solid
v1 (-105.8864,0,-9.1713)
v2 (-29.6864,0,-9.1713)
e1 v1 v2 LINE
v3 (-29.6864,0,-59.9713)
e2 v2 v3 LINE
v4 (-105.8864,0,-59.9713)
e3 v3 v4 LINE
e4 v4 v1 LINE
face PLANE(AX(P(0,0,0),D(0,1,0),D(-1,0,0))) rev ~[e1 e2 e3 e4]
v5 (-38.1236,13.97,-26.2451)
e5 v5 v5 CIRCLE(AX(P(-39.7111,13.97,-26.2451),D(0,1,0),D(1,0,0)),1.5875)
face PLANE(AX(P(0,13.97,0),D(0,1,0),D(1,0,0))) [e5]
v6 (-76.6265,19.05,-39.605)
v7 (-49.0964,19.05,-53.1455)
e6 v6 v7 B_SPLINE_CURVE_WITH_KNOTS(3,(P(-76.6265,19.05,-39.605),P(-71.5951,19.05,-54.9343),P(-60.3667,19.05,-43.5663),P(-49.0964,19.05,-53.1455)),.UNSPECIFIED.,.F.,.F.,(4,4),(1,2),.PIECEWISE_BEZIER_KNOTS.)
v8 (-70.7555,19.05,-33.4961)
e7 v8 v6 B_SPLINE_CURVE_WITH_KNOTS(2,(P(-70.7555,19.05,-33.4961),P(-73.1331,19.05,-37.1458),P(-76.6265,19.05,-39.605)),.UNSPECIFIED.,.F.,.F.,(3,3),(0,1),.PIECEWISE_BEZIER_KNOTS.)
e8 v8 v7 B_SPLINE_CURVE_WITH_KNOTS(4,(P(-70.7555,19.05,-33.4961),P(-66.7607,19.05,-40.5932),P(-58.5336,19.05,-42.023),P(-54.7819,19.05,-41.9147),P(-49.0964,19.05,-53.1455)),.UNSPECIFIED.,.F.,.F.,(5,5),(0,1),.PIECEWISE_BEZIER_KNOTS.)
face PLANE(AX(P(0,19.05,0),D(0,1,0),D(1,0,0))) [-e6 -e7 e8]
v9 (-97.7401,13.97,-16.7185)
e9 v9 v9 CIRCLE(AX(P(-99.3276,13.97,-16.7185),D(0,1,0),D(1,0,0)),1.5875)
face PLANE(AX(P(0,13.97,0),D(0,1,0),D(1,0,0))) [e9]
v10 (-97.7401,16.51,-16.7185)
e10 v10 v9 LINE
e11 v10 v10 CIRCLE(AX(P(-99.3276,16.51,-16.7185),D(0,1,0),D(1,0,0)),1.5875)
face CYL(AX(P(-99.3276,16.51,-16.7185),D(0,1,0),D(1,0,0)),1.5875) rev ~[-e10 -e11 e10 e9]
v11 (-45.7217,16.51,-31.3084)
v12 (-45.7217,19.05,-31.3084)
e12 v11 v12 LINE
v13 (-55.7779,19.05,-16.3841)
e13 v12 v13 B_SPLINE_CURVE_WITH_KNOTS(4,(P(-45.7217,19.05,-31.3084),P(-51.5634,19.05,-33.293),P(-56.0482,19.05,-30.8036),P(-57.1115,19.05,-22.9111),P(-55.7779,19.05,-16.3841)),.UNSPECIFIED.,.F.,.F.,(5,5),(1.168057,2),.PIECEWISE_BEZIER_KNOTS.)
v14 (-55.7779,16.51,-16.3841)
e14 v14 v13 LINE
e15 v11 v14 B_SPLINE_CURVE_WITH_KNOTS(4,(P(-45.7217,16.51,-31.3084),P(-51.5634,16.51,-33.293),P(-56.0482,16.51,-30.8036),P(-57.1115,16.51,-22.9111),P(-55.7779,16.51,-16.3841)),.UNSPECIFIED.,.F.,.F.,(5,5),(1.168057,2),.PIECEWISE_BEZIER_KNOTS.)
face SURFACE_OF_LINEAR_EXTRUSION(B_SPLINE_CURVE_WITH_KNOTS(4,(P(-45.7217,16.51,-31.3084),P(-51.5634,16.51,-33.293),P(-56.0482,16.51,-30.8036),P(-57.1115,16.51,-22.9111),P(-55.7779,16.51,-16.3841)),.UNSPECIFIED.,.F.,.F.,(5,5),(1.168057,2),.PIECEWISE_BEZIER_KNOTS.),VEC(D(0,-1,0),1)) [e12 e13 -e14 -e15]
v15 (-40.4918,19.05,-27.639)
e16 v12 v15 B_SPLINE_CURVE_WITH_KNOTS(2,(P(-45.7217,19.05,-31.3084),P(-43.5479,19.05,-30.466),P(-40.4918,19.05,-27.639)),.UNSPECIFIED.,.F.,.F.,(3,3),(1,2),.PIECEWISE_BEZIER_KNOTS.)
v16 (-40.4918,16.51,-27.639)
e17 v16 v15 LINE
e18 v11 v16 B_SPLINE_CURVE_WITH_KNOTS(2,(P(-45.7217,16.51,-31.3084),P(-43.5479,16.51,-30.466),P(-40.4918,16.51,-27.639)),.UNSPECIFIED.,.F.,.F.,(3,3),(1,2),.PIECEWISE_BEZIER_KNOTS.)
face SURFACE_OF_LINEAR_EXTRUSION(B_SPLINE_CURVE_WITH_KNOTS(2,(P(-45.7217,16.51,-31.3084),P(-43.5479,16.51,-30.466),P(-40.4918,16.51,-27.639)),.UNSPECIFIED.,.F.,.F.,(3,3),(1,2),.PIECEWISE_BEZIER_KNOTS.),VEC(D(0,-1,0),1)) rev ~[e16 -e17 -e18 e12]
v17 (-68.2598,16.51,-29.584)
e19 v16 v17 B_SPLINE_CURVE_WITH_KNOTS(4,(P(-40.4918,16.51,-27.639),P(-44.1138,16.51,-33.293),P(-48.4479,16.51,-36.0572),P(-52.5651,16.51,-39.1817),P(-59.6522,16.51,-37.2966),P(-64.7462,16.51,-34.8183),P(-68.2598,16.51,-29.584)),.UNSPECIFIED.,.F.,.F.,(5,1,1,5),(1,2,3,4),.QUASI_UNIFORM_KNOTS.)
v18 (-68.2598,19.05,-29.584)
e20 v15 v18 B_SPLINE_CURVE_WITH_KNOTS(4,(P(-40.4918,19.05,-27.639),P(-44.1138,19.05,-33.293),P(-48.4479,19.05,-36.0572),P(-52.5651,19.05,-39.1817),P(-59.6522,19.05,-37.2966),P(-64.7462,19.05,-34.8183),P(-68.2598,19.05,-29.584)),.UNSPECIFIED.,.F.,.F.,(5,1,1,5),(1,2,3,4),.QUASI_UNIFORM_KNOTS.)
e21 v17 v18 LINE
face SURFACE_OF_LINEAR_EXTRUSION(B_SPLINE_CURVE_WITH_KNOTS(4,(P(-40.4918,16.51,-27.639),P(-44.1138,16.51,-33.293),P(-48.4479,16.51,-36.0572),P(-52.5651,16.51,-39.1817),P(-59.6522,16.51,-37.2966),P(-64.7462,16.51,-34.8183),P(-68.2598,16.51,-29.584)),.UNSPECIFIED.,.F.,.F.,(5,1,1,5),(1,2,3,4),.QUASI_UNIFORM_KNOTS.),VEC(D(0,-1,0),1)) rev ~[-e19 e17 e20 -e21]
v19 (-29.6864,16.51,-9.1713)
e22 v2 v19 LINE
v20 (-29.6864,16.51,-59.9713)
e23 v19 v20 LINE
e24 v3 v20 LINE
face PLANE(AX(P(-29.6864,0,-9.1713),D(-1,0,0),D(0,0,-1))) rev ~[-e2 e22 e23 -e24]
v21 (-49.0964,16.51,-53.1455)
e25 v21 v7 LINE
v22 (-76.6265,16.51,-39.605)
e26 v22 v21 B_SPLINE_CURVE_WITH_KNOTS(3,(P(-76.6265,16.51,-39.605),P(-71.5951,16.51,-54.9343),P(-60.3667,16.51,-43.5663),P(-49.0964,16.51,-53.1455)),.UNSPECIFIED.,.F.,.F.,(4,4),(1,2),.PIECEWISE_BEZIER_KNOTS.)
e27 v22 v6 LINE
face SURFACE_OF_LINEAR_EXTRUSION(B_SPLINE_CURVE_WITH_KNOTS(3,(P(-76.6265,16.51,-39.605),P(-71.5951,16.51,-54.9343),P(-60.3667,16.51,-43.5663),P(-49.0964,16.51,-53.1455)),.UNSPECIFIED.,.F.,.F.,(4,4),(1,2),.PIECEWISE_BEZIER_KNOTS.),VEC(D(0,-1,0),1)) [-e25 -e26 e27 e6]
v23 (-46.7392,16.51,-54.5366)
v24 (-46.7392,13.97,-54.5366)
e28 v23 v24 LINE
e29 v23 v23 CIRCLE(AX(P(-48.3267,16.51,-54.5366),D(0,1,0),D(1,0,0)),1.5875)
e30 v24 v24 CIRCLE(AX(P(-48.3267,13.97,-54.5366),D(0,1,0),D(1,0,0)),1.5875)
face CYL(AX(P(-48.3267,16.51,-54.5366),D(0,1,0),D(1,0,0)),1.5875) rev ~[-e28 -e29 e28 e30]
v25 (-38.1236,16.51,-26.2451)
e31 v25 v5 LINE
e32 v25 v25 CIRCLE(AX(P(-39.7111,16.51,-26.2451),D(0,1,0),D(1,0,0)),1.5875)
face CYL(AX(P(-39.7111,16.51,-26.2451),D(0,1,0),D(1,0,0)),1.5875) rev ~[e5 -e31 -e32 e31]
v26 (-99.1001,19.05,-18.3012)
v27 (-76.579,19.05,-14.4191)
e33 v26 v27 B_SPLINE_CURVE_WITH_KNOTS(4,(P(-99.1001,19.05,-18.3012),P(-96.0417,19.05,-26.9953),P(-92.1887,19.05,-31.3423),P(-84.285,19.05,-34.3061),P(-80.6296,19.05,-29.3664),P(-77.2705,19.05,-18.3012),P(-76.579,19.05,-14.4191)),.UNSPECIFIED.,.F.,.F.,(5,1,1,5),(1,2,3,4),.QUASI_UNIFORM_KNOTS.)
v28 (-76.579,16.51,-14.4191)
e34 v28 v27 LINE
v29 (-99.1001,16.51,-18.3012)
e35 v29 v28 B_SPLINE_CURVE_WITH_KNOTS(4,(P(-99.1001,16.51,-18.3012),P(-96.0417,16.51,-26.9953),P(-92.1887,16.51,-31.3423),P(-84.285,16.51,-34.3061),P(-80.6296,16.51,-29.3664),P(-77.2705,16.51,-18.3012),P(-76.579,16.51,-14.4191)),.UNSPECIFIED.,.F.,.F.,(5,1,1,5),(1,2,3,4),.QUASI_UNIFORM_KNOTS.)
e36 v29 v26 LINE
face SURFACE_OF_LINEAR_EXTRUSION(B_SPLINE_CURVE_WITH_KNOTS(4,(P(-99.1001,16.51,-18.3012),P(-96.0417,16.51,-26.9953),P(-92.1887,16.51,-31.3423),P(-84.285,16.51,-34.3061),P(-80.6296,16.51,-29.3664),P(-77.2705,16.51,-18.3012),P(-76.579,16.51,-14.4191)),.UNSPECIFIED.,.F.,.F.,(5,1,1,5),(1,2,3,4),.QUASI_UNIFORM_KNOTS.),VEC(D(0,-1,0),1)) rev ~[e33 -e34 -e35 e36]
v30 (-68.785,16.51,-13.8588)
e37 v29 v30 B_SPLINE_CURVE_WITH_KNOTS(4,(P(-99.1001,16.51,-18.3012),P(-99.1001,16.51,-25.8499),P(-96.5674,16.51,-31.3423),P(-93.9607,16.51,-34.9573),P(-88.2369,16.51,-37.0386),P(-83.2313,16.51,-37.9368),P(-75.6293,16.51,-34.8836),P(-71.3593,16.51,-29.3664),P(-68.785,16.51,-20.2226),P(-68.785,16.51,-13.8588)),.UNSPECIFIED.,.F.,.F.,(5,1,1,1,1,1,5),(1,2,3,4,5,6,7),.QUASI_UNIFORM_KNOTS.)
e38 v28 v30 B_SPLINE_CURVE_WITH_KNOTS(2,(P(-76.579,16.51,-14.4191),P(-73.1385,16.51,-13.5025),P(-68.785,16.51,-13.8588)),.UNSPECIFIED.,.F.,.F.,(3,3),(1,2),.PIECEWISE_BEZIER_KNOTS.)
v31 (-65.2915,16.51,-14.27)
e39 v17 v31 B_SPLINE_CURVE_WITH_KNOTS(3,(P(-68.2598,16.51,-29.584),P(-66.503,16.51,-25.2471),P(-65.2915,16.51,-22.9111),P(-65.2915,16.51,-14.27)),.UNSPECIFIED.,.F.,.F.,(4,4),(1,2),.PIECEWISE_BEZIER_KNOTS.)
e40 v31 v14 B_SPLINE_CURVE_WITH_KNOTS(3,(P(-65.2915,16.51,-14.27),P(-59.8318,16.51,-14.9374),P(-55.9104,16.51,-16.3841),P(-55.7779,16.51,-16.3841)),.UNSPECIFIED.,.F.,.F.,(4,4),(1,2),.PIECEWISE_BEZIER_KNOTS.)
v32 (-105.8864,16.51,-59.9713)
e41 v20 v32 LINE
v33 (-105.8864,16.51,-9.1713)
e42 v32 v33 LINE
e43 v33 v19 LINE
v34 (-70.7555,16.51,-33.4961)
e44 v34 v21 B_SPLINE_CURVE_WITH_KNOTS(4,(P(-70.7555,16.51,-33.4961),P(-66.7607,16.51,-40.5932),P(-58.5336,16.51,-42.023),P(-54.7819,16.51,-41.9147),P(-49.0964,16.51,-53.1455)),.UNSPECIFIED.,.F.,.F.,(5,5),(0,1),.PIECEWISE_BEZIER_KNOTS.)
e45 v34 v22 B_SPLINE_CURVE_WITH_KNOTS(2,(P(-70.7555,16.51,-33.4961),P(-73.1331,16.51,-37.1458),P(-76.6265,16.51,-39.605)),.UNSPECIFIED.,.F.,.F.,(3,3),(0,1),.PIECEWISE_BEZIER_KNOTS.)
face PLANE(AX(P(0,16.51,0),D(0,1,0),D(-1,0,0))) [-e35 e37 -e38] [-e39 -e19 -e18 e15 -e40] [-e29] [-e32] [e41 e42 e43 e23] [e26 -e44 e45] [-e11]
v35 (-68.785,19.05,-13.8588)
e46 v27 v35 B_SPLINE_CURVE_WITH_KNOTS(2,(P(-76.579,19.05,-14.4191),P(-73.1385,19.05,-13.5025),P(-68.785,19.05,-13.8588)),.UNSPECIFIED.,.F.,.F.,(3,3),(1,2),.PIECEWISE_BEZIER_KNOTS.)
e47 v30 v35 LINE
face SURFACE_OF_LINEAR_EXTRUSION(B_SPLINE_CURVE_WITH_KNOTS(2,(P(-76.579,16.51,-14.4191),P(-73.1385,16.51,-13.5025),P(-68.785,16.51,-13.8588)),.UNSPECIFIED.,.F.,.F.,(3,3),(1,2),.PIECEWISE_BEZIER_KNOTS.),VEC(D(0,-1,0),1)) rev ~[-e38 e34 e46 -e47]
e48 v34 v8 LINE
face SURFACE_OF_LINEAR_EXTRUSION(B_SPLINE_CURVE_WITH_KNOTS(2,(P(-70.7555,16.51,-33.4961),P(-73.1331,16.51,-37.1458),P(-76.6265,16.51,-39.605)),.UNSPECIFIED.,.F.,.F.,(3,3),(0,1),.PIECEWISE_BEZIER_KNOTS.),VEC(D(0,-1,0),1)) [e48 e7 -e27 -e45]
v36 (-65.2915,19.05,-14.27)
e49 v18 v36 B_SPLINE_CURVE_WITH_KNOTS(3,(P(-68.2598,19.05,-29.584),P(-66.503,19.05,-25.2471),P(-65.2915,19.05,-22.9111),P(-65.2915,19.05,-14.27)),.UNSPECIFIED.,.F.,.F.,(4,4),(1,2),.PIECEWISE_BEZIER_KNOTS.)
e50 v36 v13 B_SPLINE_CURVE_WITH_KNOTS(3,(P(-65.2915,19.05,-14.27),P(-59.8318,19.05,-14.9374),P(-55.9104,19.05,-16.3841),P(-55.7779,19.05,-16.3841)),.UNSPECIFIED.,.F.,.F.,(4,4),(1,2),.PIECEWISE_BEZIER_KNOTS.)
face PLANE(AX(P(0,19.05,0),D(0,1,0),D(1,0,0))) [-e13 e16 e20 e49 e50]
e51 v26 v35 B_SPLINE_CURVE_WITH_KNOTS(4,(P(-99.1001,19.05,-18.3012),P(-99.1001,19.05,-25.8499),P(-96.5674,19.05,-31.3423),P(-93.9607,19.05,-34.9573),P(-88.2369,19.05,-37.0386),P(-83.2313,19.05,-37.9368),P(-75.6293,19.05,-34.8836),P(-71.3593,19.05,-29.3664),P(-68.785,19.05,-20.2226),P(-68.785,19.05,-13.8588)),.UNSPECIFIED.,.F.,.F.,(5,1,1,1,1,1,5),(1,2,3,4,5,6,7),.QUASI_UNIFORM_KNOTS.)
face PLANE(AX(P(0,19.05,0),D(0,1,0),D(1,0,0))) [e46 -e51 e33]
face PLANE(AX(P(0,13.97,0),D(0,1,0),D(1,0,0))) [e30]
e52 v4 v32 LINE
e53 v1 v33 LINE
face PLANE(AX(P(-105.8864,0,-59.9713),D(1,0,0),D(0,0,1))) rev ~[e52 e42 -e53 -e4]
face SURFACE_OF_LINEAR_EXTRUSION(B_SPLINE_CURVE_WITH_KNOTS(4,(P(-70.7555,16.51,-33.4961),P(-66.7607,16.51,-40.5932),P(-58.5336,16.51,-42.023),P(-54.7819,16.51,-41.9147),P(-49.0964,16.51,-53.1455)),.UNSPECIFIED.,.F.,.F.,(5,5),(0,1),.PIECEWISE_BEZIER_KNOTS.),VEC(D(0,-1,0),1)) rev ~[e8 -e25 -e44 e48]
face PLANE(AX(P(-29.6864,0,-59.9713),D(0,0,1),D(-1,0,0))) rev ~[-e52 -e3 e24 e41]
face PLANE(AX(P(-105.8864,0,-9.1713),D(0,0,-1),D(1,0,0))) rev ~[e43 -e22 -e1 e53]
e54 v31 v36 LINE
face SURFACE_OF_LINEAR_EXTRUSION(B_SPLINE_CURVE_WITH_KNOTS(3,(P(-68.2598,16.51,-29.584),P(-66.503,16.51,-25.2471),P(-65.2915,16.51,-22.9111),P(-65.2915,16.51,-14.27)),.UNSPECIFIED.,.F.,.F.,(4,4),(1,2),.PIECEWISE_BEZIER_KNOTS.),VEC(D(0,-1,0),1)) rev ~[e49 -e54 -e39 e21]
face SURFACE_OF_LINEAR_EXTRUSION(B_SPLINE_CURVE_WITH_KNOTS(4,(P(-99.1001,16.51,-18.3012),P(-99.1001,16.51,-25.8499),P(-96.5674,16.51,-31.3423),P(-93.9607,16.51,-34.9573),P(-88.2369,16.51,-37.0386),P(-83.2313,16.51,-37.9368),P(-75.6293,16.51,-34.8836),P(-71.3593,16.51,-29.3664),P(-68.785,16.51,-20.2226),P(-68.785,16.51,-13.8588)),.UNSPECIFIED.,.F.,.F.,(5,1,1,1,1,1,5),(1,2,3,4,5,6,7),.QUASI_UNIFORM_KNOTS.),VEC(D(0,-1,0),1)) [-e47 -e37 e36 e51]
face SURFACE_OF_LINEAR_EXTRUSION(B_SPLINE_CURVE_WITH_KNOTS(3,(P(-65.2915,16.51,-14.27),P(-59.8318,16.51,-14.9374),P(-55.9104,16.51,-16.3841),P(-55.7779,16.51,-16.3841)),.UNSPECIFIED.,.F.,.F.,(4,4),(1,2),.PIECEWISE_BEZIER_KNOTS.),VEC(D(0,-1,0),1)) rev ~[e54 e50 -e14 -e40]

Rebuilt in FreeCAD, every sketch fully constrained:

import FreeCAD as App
import Part
import Sketcher
from FreeCAD import Vector
Q = App.Units.Quantity


def add_polygon(sketch, points):
    """Adds a closed chain of lines whose ends are joined by coincident constraints."""
    first, n = sketch.GeometryCount, len(points)
    for a, b in zip(points, points[1:] + points[:1]):
        sketch.addGeometry(Part.LineSegment(App.Vector(*a, 0), App.Vector(*b, 0)), False)
    for i in range(n):
        sketch.addConstraint(Sketcher.Constraint("Coincident", first + i, 2, first + (i + 1) % n, 1))

doc = App.newDocument("Part")
params = doc.addObject("Spreadsheet::Sheet", "Params")
for row, (alias, value) in enumerate([
    ("sketch1_width", "3 in"),
    ("sketch1_height", "2 in"),
    ("pad1_length", "0.65 in"),
    ("pad2_length", "0.1 in"),
    ("sketch3_diameter", "0.125 in"),
    ("pocket1_length", "0.1 in"),
], start=1):
    params.set(f"A{row}", alias)
    params.set(f"B{row}", "=" + value)
    params.setAlias(f"B{row}", alias)

body = doc.addObject("PartDesign::Body", "Body")

# Sketch on XZ plane
sketch1 = body.newObject("Sketcher::SketchObject", "Sketch")
sketch1.AttachmentSupport = (doc.getObject("XZ_Plane"), [""])
sketch1.MapMode = "FlatFace"
add_polygon(sketch1, [(-106, -60), (-106, -9), (-30, -9), (-30, -60)])  # lines 0-3
sketch1.addConstraint([
    Sketcher.Constraint("Vertical", 0),
    Sketcher.Constraint("Horizontal", 1),
    Sketcher.Constraint("Vertical", 2),
    Sketcher.Constraint("Horizontal", 3),
    Sketcher.Constraint("DistanceX", 1, 1, 1, 2, Q("3 in")),
    Sketcher.Constraint("DistanceY", 0, 1, 0, 2, Q("2 in")),
    Sketcher.Constraint("DistanceX", 0, 2, -1, 1, 105.8864),
    Sketcher.Constraint("DistanceY", 0, 2, -1, 1, 9.1713),
])
sketch1.setExpression("Constraints[8]", "Params.sketch1_width")
sketch1.setExpression("Constraints[9]", "Params.sketch1_height")
pad1 = body.newObject("PartDesign::Pad", "Pad")
pad1.Profile = sketch1
pad1.setExpression("Length", "Params.pad1_length")
pad1.Reversed = True

# Sketch on XZ plane
sketch2 = body.newObject("Sketcher::SketchObject", "Sketch001")
sketch2.AttachmentSupport = (doc.getObject("XZ_Plane"), [""])
sketch2.MapMode = "FlatFace"
sketch2.AttachmentOffset = App.Placement(Vector(0, 0, -0.65 * 25.4), App.Rotation())
sketch2.addGeometry([
    Part.BSplineCurve([Vector(-99.1001, -18.3012, 0), Vector(-99.1001, -25.8499, 0), Vector(-96.5674, -31.3423, 0), Vector(-93.9607, -34.9573, 0), Vector(-88.2369, -37.0386, 0), Vector(-83.2313, -37.9368, 0), Vector(-75.6293, -34.8836, 0), Vector(-71.3593, -29.3664, 0), Vector(-68.785, -20.2226, 0), Vector(-68.785, -13.8588, 0)], [5, 1, 1, 1, 1, 1, 5], [1, 2, 3, 4, 5, 6, 7], False, 4, [1, 1, 1, 1, 1, 1, 1, 1, 1, 1], False),  # 0
    Part.BSplineCurve([Vector(-99.1001, -18.3012, 0), Vector(-96.0417, -26.9953, 0), Vector(-92.1887, -31.3423, 0), Vector(-84.285, -34.3061, 0), Vector(-80.6296, -29.3664, 0), Vector(-77.2705, -18.3012, 0), Vector(-76.579, -14.4191, 0)], [5, 1, 1, 5], [1, 2, 3, 4], False, 4, [1, 1, 1, 1, 1, 1, 1], False),  # 1
    Part.BSplineCurve([Vector(-76.579, -14.4191, 0), Vector(-73.1385, -13.5025, 0), Vector(-68.785, -13.8588, 0)], [3, 3], [1, 2], False, 2, [1, 1, 1], False),  # 2
    Part.BSplineCurve([Vector(-40.4918, -27.639, 0), Vector(-44.1138, -33.293, 0), Vector(-48.4479, -36.0572, 0), Vector(-52.5651, -39.1817, 0), Vector(-59.6522, -37.2966, 0), Vector(-64.7462, -34.8183, 0), Vector(-68.2598, -29.584, 0)], [5, 1, 1, 5], [1, 2, 3, 4], False, 4, [1, 1, 1, 1, 1, 1, 1], False),  # 3
    Part.BSplineCurve([Vector(-68.2598, -29.584, 0), Vector(-66.503, -25.2471, 0), Vector(-65.2915, -22.9111, 0), Vector(-65.2915, -14.27, 0)], [4, 4], [1, 2], False, 3, [1, 1, 1, 1], False),  # 4
    Part.BSplineCurve([Vector(-65.2915, -14.27, 0), Vector(-59.8318, -14.9374, 0), Vector(-55.9104, -16.3841, 0), Vector(-55.7779, -16.3841, 0)], [4, 4], [1, 2], False, 3, [1, 1, 1, 1], False),  # 5
    Part.BSplineCurve([Vector(-45.7217, -31.3084, 0), Vector(-51.5634, -33.293, 0), Vector(-56.0482, -30.8036, 0), Vector(-57.1115, -22.9111, 0), Vector(-55.7779, -16.3841, 0)], [5, 5], [1.168057, 2], False, 4, [1, 1, 1, 1, 1], False),  # 6
    Part.BSplineCurve([Vector(-45.7217, -31.3084, 0), Vector(-43.5479, -30.466, 0), Vector(-40.4918, -27.639, 0)], [3, 3], [1, 2], False, 2, [1, 1, 1], False),  # 7
    Part.BSplineCurve([Vector(-70.7555, -33.4961, 0), Vector(-73.1331, -37.1458, 0), Vector(-76.6265, -39.605, 0)], [3, 3], [0, 1], False, 2, [1, 1, 1], False),  # 8
    Part.BSplineCurve([Vector(-70.7555, -33.4961, 0), Vector(-66.7607, -40.5932, 0), Vector(-58.5336, -42.023, 0), Vector(-54.7819, -41.9147, 0), Vector(-49.0964, -53.1455, 0)], [5, 5], [0, 1], False, 4, [1, 1, 1, 1, 1], False),  # 9
    Part.BSplineCurve([Vector(-76.6265, -39.605, 0), Vector(-71.5951, -54.9343, 0), Vector(-60.3667, -43.5663, 0), Vector(-49.0964, -53.1455, 0)], [4, 4], [1, 2], False, 3, [1, 1, 1, 1], False),  # 10
], False)
sketch2.addConstraint([
    Sketcher.Constraint("Block", 0),
    Sketcher.Constraint("Block", 1),
    Sketcher.Constraint("Block", 2),
    Sketcher.Constraint("Block", 3),
    Sketcher.Constraint("Block", 4),
    Sketcher.Constraint("Block", 5),
    Sketcher.Constraint("Block", 6),
    Sketcher.Constraint("Block", 7),
    Sketcher.Constraint("Block", 8),
    Sketcher.Constraint("Block", 9),
    Sketcher.Constraint("Block", 10),
])
pad2 = body.newObject("PartDesign::Pad", "Pad001")
pad2.Profile = sketch2
pad2.setExpression("Length", "Params.pad2_length")
pad2.Reversed = True

# Sketch on XZ plane
sketch3 = body.newObject("Sketcher::SketchObject", "Sketch002")
sketch3.AttachmentSupport = (doc.getObject("XZ_Plane"), [""])
sketch3.MapMode = "FlatFace"
sketch3.AttachmentOffset = App.Placement(Vector(0, 0, -0.65 * 25.4), App.Rotation())
sketch3.addGeometry([
    Part.Circle(Vector(-39.7, -26.2, 0), Vector(0, 0, 1), 1.6),
    Part.Circle(Vector(-99.3, -16.7, 0), Vector(0, 0, 1), 1.6),
    Part.Circle(Vector(-48.3, -54.5, 0), Vector(0, 0, 1), 1.6),
], False)
sketch3.addConstraint([
    Sketcher.Constraint("Equal", 0, 1),
    Sketcher.Constraint("Equal", 1, 2),
    Sketcher.Constraint("Diameter", 0, Q("0.125 in")),
    Sketcher.Constraint("DistanceY", 1, 3, -1, 1, Q("0.6582 in")),
    Sketcher.Constraint("DistanceY", 2, 3, -1, 1, Q("2.1471 in")),
    Sketcher.Constraint("DistanceX", 1, 3, 0, 3, Q("2.3471 in")),
    Sketcher.Constraint("DistanceX", 2, 3, 0, 3, Q("0.3392 in")),
    Sketcher.Constraint("DistanceX", 0, 3, -1, 1, 39.711),
    Sketcher.Constraint("DistanceY", 0, 3, -1, 1, 26.245),
])
sketch3.setExpression("Constraints[2]", "Params.sketch3_diameter")
pocket1 = body.newObject("PartDesign::Pocket", "Pocket")
pocket1.Profile = sketch3
pocket1.setExpression("Length", "Params.pocket1_length")
pocket1.Reversed = True

doc.recompute()
